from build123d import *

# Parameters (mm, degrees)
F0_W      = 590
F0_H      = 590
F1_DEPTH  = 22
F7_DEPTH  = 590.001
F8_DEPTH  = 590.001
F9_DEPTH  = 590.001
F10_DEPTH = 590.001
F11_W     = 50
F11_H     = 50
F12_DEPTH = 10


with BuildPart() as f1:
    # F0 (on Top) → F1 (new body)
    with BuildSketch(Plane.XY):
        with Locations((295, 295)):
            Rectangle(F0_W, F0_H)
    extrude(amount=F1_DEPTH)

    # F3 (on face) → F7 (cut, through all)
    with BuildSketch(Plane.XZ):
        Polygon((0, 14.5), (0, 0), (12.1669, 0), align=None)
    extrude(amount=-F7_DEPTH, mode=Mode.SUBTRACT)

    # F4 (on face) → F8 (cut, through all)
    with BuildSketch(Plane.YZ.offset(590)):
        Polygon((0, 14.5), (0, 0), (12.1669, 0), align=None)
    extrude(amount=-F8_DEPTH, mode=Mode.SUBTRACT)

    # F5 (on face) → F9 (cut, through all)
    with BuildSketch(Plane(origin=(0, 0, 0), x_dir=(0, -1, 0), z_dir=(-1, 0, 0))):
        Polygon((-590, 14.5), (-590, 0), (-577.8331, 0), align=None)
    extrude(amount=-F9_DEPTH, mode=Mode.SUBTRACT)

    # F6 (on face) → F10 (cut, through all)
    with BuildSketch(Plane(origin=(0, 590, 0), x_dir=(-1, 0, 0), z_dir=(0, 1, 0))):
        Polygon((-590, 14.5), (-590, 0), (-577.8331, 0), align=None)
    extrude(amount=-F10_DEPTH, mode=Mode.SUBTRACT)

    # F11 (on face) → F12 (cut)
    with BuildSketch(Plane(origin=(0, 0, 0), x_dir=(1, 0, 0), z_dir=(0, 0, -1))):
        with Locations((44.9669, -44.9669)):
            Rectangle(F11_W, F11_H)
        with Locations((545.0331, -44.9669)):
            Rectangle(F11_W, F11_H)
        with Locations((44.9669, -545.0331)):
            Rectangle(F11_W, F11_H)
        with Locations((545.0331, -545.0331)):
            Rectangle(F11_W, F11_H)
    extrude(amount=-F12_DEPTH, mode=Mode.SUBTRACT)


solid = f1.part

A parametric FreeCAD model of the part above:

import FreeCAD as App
import Part
import Sketcher
from FreeCAD import Vector


def add_polygon(sketch, points):
    """Adds a closed chain of lines whose ends are joined by coincident constraints."""
    first, n = sketch.GeometryCount, len(points)
    for a, b in zip(points, points[1:] + points[:1]):
        sketch.addGeometry(Part.LineSegment(App.Vector(*a, 0), App.Vector(*b, 0)), False)
    for i in range(n):
        sketch.addConstraint(Sketcher.Constraint("Coincident", first + i, 2, first + (i + 1) % n, 1))

doc = App.newDocument("Part")
params = doc.addObject("Spreadsheet::Sheet", "Params")
for row, (alias, value) in enumerate([
    ("sketch1_width", "590 mm"),
    ("pad1_length", "22 mm"),
    ("sketch2_height", "14.5 mm"),
    ("sketch3_height", "14.5 mm"),
    ("sketch4_height", "14.5 mm"),
    ("sketch5_height", "14.5 mm"),
    ("sketch6_width", "50 mm"),
    ("pocket5_length", "10 mm"),
], start=1):
    params.set(f"A{row}", alias)
    params.set(f"B{row}", "=" + value)
    params.setAlias(f"B{row}", alias)

body = doc.addObject("PartDesign::Body", "Body")

sketch1 = doc.addObject("Sketcher::SketchObject", "Sketch")
body.addObject(sketch1)
sketch1.AttachmentSupport = (doc.XY_Plane, [""])
sketch1.MapMode = "FlatFace"
add_polygon(sketch1, [(0, 590), (0, 0), (590, 0), (590, 590)])
sketch1.addConstraint([
    Sketcher.Constraint("Vertical", 0),
    Sketcher.Constraint("Horizontal", 1),
    Sketcher.Constraint("Vertical", 2),
    Sketcher.Constraint("Horizontal", 3),
    Sketcher.Constraint("Coincident", 0, 2, -1, 1),
    Sketcher.Constraint("Equal", 3, 0),
    Sketcher.Constraint("DistanceX", 1, 1, 1, 2, 590.0),
])
sketch1.setExpression("Constraints[10]", "Params.sketch1_width")
pad1 = doc.addObject("PartDesign::Pad", "Pad")
body.addObject(pad1)
pad1.Profile = sketch1
pad1.setExpression("Length", "Params.pad1_length")

sketch2 = doc.addObject("Sketcher::SketchObject", "Sketch001")
body.addObject(sketch2)
sketch2.AttachmentSupport = (doc.XZ_Plane, [""])
sketch2.MapMode = "FlatFace"
add_polygon(sketch2, [(0, 14), (0, 0), (12, 0)])
sketch2.addConstraint([
    Sketcher.Constraint("Vertical", 0),
    Sketcher.Constraint("Horizontal", 1),
    Sketcher.Constraint("Coincident", 0, 2, -1, 1),
    Sketcher.Constraint("DistanceY", 0, 2, 0, 1, 14.5),
    Sketcher.Constraint("DistanceX", 1, 1, 1, 2, 12.1669),
])
sketch2.setExpression("Constraints[6]", "Params.sketch2_height")
pocket1 = doc.addObject("PartDesign::Pocket", "Pocket")
body.addObject(pocket1)
pocket1.Profile = sketch2
pocket1.Type = "ThroughAll"

sketch3 = doc.addObject("Sketcher::SketchObject", "Sketch002")
body.addObject(sketch3)
sketch3.AttachmentSupport = (doc.YZ_Plane, [""])
sketch3.MapMode = "FlatFace"
sketch3.AttachmentOffset = App.Placement(Vector(0, 0, 590), App.Rotation())
add_polygon(sketch3, [(0, 14), (0, 0), (12, 0)])
sketch3.addConstraint([
    Sketcher.Constraint("Vertical", 0),
    Sketcher.Constraint("Horizontal", 1),
    Sketcher.Constraint("Coincident", 0, 2, -1, 1),
    Sketcher.Constraint("DistanceY", 0, 2, 0, 1, 14.5),
    Sketcher.Constraint("DistanceX", 1, 1, 1, 2, 12.1669),
])
sketch3.setExpression("Constraints[6]", "Params.sketch3_height")
pocket2 = doc.addObject("PartDesign::Pocket", "Pocket001")
body.addObject(pocket2)
pocket2.Profile = sketch3
pocket2.Type = "ThroughAll"

sketch4 = doc.addObject("Sketcher::SketchObject", "Sketch003")
body.addObject(sketch4)
sketch4.AttachmentSupport = (doc.YZ_Plane, [""])
sketch4.MapMode = "FlatFace"
add_polygon(sketch4, [(590, 14), (590, 0), (578, 0)])
sketch4.addConstraint([
    Sketcher.Constraint("Vertical", 0),
    Sketcher.Constraint("Horizontal", 1),
    Sketcher.Constraint("PointOnObject", 0, 2, -1),
    Sketcher.Constraint("DistanceY", 0, 2, 0, 1, 14.5),
    Sketcher.Constraint("DistanceX", -1, 1, 0, 2, 590.0),
    Sketcher.Constraint("DistanceX", 1, 2, 1, 1, 12.1669),
])
sketch4.setExpression("Constraints[6]", "Params.sketch4_height")
pocket3 = doc.addObject("PartDesign::Pocket", "Pocket002")
body.addObject(pocket3)
pocket3.Profile = sketch4
pocket3.Type = "ThroughAll"
pocket3.Reversed = True

sketch5 = doc.addObject("Sketcher::SketchObject", "Sketch004")
body.addObject(sketch5)
sketch5.AttachmentSupport = (doc.XZ_Plane, [""])
sketch5.MapMode = "FlatFace"
sketch5.AttachmentOffset = App.Placement(Vector(0, 0, -590), App.Rotation())
add_polygon(sketch5, [(590, 14), (590, 0), (578, 0)])
sketch5.addConstraint([
    Sketcher.Constraint("Vertical", 0),
    Sketcher.Constraint("Horizontal", 1),
    Sketcher.Constraint("PointOnObject", 0, 2, -1),
    Sketcher.Constraint("DistanceY", 0, 2, 0, 1, 14.5),
    Sketcher.Constraint("DistanceX", -1, 1, 0, 2, 590.0),
    Sketcher.Constraint("DistanceX", 1, 2, 1, 1, 12.1669),
])
sketch5.setExpression("Constraints[6]", "Params.sketch5_height")
pocket4 = doc.addObject("PartDesign::Pocket", "Pocket003")
body.addObject(pocket4)
pocket4.Profile = sketch5
pocket4.Type = "ThroughAll"
pocket4.Reversed = True

sketch6 = doc.addObject("Sketcher::SketchObject", "Sketch005")
body.addObject(sketch6)
sketch6.AttachmentSupport = (doc.XY_Plane, [""])
sketch6.MapMode = "FlatFace"
add_polygon(sketch6, [(20, 20), (20, 70), (70, 70), (70, 20)])
add_polygon(sketch6, [(520, 20), (520, 70), (570, 70), (570, 20)])
add_polygon(sketch6, [(20, 520), (20, 570), (70, 570), (70, 520)])
add_polygon(sketch6, [(520, 520), (520, 570), (570, 570), (570, 520)])
sketch6.addConstraint([
    Sketcher.Constraint("Vertical", 0),
    Sketcher.Constraint("Horizontal", 1),
    Sketcher.Constraint("Vertical", 2),
    Sketcher.Constraint("Horizontal", 3),
    Sketcher.Constraint("Vertical", 4),
    Sketcher.Constraint("Horizontal", 5),
    Sketcher.Constraint("Vertical", 6),
    Sketcher.Constraint("Horizontal", 7),
    Sketcher.Constraint("Vertical", 8),
    Sketcher.Constraint("Horizontal", 9),
    Sketcher.Constraint("Vertical", 10),
    Sketcher.Constraint("Horizontal", 11),
    Sketcher.Constraint("Vertical", 12),
    Sketcher.Constraint("Horizontal", 13),
    Sketcher.Constraint("Vertical", 14),
    Sketcher.Constraint("Horizontal", 15),
    Sketcher.Constraint("Horizontal", 1, 2, 4, 2),
    Sketcher.Constraint("Horizontal", 3, 2, 6, 2),
    Sketcher.Constraint("Horizontal", 9, 2, 12, 2),
    Sketcher.Constraint("Horizontal", 11, 2, 14, 2),
    Sketcher.Constraint("Vertical", 3, 2, 8, 2),
    Sketcher.Constraint("Vertical", 2, 2, 9, 2),
    Sketcher.Constraint("Vertical", 7, 2, 12, 2),
    Sketcher.Constraint("Vertical", 6, 2, 13, 2),
    Sketcher.Constraint("Equal", 3, 5),
    Sketcher.Constraint("Equal", 15, 0),
    Sketcher.Constraint("Equal", 6, 8),
    Sketcher.Constraint("DistanceX", 1, 1, 1, 2, 50.0),
    Sketcher.Constraint("DistanceX", -1, 1, 0, 2, 19.9669),
    Sketcher.Constraint("DistanceY", -1, 1, 0, 2, 69.9669),
    Sketcher.Constraint("DistanceX", -1, 1, 4, 2, 520.0331),
    Sketcher.Constraint("DistanceY", -1, 1, 8, 2, 570.0331),
])
sketch6.setExpression("Constraints[43]", "Params.sketch6_width")
pocket5 = doc.addObject("PartDesign::Pocket", "Pocket004")
body.addObject(pocket5)
pocket5.Profile = sketch6
pocket5.setExpression("Length", "Params.pocket5_length")
pocket5.Reversed = True

doc.recompute()
